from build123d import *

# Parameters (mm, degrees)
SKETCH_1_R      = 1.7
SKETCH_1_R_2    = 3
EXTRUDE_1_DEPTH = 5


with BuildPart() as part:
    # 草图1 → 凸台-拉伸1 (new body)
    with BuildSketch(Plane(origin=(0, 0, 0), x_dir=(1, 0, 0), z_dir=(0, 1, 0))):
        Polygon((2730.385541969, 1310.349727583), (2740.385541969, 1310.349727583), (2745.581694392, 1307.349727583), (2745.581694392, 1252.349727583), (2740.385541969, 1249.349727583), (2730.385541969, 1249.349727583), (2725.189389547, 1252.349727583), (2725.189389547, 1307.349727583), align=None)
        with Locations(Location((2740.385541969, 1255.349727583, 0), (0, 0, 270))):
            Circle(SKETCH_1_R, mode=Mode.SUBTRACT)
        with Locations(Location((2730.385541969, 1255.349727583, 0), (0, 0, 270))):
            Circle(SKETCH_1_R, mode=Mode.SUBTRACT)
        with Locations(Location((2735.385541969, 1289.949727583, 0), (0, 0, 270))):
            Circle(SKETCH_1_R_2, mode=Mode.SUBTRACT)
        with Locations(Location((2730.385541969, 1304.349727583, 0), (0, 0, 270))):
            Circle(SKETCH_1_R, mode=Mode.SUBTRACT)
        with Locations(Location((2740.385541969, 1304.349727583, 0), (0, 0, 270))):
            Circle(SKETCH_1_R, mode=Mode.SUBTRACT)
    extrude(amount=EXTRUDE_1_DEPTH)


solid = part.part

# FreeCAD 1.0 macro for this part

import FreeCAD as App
import Part
import Sketcher
Q = App.Units.Quantity


def add_polygon(sketch, points):
    """Adds a closed chain of lines whose ends are joined by coincident constraints."""
    first, n = sketch.GeometryCount, len(points)
    for a, b in zip(points, points[1:] + points[:1]):
        sketch.addGeometry(Part.LineSegment(App.Vector(*a, 0), App.Vector(*b, 0)), False)
    for i in range(n):
        sketch.addConstraint(Sketcher.Constraint("Coincident", first + i, 2, first + (i + 1) % n, 1))

doc = App.newDocument("Part")
body = doc.addObject("PartDesign::Body", "Body")

# Sketch on XZ plane
sketch1 = body.newObject("Sketcher::SketchObject", "Sketch")
sketch1.AttachmentSupport = (doc.getObject("XZ_Plane"), [""])
sketch1.MapMode = "FlatFace"
add_polygon(sketch1, [(2740.4, -1310.3), (2730.4, -1310.3), (2725.2, -1307.3), (2725.2, -1252.3), (2730.4, -1249.3), (2740.4, -1249.3), (2745.6, -1252.3), (2745.6, -1307.3)])  # lines 0-7
sketch1.addGeometry(Part.Circle(App.Vector(2740.4, -1255.3, 0), App.Vector(0, 0, 1), 1.7), False)  # 8
sketch1.addGeometry(Part.Circle(App.Vector(2730.4, -1255.3, 0), App.Vector(0, 0, 1), 1.7), False)  # 9
sketch1.addGeometry(Part.Circle(App.Vector(2740.4, -1304.3, 0), App.Vector(0, 0, 1), 1.7), False)  # 10
sketch1.addGeometry(Part.Circle(App.Vector(2735.4, -1289.9, 0), App.Vector(0, 0, 1), 3), False)  # 11
sketch1.addGeometry(Part.Circle(App.Vector(2730.4, -1304.3, 0), App.Vector(0, 0, 1), 1.7), False)  # 12
sketch1.addConstraint([
    Sketcher.Constraint("Horizontal", 0),
    Sketcher.Constraint("Vertical", 2),
    Sketcher.Constraint("Horizontal", 4),
    Sketcher.Constraint("Vertical", 6),
    Sketcher.Constraint("Equal", 8, 9),
    Sketcher.Constraint("Equal", 9, 10),
    Sketcher.Constraint("Equal", 10, 12),
    Sketcher.Constraint("Parallel", 1, 5),
    Sketcher.Constraint("Parallel", 3, 7),
    Sketcher.Constraint("Horizontal", 8, 3, 9, 3),
    Sketcher.Constraint("Horizontal", 10, 3, 12, 3),
    Sketcher.Constraint("Horizontal", 2, 2, 5, 2),
    Sketcher.Constraint("Horizontal", 1, 2, 6, 2),
    Sketcher.Constraint("Vertical", 8, 3, 10, 3),
    Sketcher.Constraint("Vertical", 9, 3, 12, 3),
    Sketcher.Constraint("Vertical", 12, 3, 0, 2),
    Sketcher.Constraint("Vertical", 0, 2, 3, 2),
    Sketcher.Constraint("Vertical", 10, 3, 4, 2),
    Sketcher.Constraint("Vertical", 4, 2, 7, 2),
    Sketcher.Constraint("Diameter", 11, 6.0),
    Sketcher.Constraint("Diameter", 8, 3.4),
    Sketcher.Constraint("DistanceX", 0, 2, 0, 1, 10.0),
    Sketcher.Constraint("DistanceY", 2, 1, 2, 2, 55.0),
    Sketcher.Constraint("Angle", 1, Q("150 deg")),
    Sketcher.Constraint("Distance", 1, 6.0),
    Sketcher.Constraint("DistanceY", 10, 3, 8, 3, 49.0),
    Sketcher.Constraint("DistanceX", 11, 3, 10, 3, 5.0),
    Sketcher.Constraint("DistanceY", 0, 2, 12, 3, 6.0),
    Sketcher.Constraint("DistanceY", 10, 3, 11, 3, 14.4),
    Sketcher.Constraint("DistanceX", -1, 1, 8, 3, 2740.385542),
    Sketcher.Constraint("DistanceY", 8, 3, -1, 1, 1255.349728),
])
pad1 = body.newObject("PartDesign::Pad", "Pad")
pad1.Profile = sketch1
pad1.Length = 5
pad1.Reversed = True

doc.recompute()
